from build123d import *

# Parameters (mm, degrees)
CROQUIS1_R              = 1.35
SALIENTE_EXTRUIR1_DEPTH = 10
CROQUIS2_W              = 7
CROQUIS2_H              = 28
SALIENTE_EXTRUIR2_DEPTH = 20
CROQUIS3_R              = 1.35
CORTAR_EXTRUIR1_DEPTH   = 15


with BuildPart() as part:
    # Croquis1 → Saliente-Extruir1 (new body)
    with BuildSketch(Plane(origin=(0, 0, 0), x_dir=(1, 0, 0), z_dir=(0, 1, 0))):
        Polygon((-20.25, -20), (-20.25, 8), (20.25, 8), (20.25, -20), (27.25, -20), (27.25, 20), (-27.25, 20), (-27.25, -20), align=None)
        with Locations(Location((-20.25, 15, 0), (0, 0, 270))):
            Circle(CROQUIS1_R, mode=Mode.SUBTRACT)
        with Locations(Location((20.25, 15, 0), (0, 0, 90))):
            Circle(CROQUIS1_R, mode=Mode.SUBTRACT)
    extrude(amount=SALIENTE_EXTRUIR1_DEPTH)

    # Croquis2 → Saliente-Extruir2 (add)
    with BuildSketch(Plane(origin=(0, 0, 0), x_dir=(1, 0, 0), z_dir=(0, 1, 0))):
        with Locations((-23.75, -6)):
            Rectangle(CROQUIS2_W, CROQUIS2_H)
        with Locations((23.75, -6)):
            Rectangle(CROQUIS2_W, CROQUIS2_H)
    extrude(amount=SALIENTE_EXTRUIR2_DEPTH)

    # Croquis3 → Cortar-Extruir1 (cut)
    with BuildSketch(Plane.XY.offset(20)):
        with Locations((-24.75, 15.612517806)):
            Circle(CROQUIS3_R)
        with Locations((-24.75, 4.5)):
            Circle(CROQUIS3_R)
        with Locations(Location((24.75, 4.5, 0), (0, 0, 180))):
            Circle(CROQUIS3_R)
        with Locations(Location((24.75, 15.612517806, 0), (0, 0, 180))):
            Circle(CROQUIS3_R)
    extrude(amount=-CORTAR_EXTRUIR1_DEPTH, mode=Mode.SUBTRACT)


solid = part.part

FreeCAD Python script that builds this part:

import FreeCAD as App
import Part
import Sketcher
from FreeCAD import Vector
Q = App.Units.Quantity


def add_polygon(sketch, points):
    """Adds a closed chain of lines whose ends are joined by coincident constraints."""
    first, n = sketch.GeometryCount, len(points)
    for a, b in zip(points, points[1:] + points[:1]):
        sketch.addGeometry(Part.LineSegment(App.Vector(*a, 0), App.Vector(*b, 0)), False)
    for i in range(n):
        sketch.addConstraint(Sketcher.Constraint("Coincident", first + i, 2, first + (i + 1) % n, 1))

doc = App.newDocument("Part")
body = doc.addObject("PartDesign::Body", "Body")

# Sketch on XZ plane
sketch1 = body.newObject("Sketcher::SketchObject", "Sketch")
sketch1.AttachmentSupport = (doc.getObject("XZ_Plane"), [""])
sketch1.MapMode = "FlatFace"
add_polygon(sketch1, [(-20.2, 20), (-20.2, -8), (20.2, -8), (20.2, 20), (27.2, 20), (27.2, -20), (-27.2, -20), (-27.2, 20)])  # lines 0-7
sketch1.addGeometry(Part.Circle(Vector(-20.2, -15, 0), Vector(0, 0, 1), 1.4), False)  # 8
sketch1.addGeometry(Part.Circle(Vector(20.2, -15, 0), Vector(0, 0, 1), 1.4), False)  # 9
sketch1.addConstraint([
    Sketcher.Constraint("Vertical", 0),
    Sketcher.Constraint("Horizontal", 1),
    Sketcher.Constraint("Vertical", 2),
    Sketcher.Constraint("Horizontal", 3),
    Sketcher.Constraint("Vertical", 4),
    Sketcher.Constraint("Horizontal", 5),
    Sketcher.Constraint("Vertical", 6),
    Sketcher.Constraint("Horizontal", 7),
    Sketcher.Constraint("Equal", 8, 9),
    Sketcher.Constraint("Symmetric", 3, 2, 5, 2, -1, 1),
    Sketcher.Constraint("Symmetric", 8, 3, 9, 3, -2),
    Sketcher.Constraint("Symmetric", 2, 2, 7, 2, -2),
    Sketcher.Constraint("Vertical", 8, 3, 0, 2),
    Sketcher.Constraint("Diameter", 8, Q("2.7 mm")),
    Sketcher.Constraint("DistanceX", 3, 1, 3, 2, Q("7 mm")),
    Sketcher.Constraint("DistanceY", 0, 2, 0, 1, Q("28 mm")),
    Sketcher.Constraint("DistanceY", 4, 2, 4, 1, Q("40 mm")),
    Sketcher.Constraint("DistanceX", 1, 1, 1, 2, Q("40.5 mm")),
    Sketcher.Constraint("DistanceY", 8, 3, -1, 1, Q("15 mm")),
])
pad1 = body.newObject("PartDesign::Pad", "Pad")
pad1.Profile = sketch1
pad1.Length = 10
pad1.Reversed = True

# Sketch on XZ plane
sketch2 = body.newObject("Sketcher::SketchObject", "Sketch001")
sketch2.AttachmentSupport = (doc.getObject("XZ_Plane"), [""])
sketch2.MapMode = "FlatFace"
add_polygon(sketch2, [(-27, -8), (-27, 20), (-20, 20), (-20, -8)])  # lines 0-3
add_polygon(sketch2, [(20, -8), (20, 20), (27, 20), (27, -8)])  # lines 4-7
sketch2.addConstraint([
    Sketcher.Constraint("Vertical", 0),
    Sketcher.Constraint("Horizontal", 1),
    Sketcher.Constraint("Vertical", 2),
    Sketcher.Constraint("Horizontal", 3),
    Sketcher.Constraint("Vertical", 4),
    Sketcher.Constraint("Horizontal", 5),
    Sketcher.Constraint("Vertical", 6),
    Sketcher.Constraint("Horizontal", 7),
    Sketcher.Constraint("Symmetric", 1, 2, 4, 2, -2),
    Sketcher.Constraint("Symmetric", 3, 2, 6, 2, -2),
    Sketcher.Constraint("DistanceX", 1, 1, 1, 2, Q("7 mm")),
    Sketcher.Constraint("DistanceY", 0, 1, 0, 2, Q("28 mm")),
    Sketcher.Constraint("DistanceY", -1, 1, 0, 2, Q("20 mm")),
    Sketcher.Constraint("DistanceX", 1, 2, 4, 2, Q("40.5 mm")),
])
pad2 = body.newObject("PartDesign::Pad", "Pad001")
pad2.Profile = sketch2
pad2.Length = 20
pad2.Reversed = True

# Sketch on XY plane
sketch3 = body.newObject("Sketcher::SketchObject", "Sketch002")
sketch3.AttachmentSupport = (doc.getObject("XY_Plane"), [""])
sketch3.MapMode = "FlatFace"
sketch3.AttachmentOffset = App.Placement(Vector(0, 0, 20), App.Rotation())
sketch3.addGeometry([
    Part.Circle(Vector(-24.8, 15.6, 0), Vector(0, 0, 1), 1.4),
    Part.Circle(Vector(-24.8, 4.5, 0), Vector(0, 0, 1), 1.4),
    Part.Circle(Vector(24.8, 4.5, 0), Vector(0, 0, 1), 1.4),
    Part.Circle(Vector(24.8, 15.6, 0), Vector(0, 0, 1), 1.4),
], False)
sketch3.addConstraint([
    Sketcher.Constraint("Equal", 0, 1),
    Sketcher.Constraint("Equal", 1, 2),
    Sketcher.Constraint("Equal", 2, 3),
    Sketcher.Constraint("Symmetric", 1, 3, 2, 3, -2),
    Sketcher.Constraint("Symmetric", 0, 3, 3, 3, -2),
    Sketcher.Constraint("Vertical", 0, 3, 1, 3),
    Sketcher.Constraint("Diameter", 0, Q("2.7 mm")),
    Sketcher.Constraint("DistanceY", -1, 1, 1, 3, Q("4.5 mm")),
    Sketcher.Constraint("DistanceX", 1, 3, 2, 3, Q("49.5 mm")),
    Sketcher.Constraint("DistanceY", -1, 1, 0, 3, Q("15.612518 mm")),
])
pocket1 = body.newObject("PartDesign::Pocket", "Pocket")
pocket1.Profile = sketch3
pocket1.Length = 15

doc.recompute()
